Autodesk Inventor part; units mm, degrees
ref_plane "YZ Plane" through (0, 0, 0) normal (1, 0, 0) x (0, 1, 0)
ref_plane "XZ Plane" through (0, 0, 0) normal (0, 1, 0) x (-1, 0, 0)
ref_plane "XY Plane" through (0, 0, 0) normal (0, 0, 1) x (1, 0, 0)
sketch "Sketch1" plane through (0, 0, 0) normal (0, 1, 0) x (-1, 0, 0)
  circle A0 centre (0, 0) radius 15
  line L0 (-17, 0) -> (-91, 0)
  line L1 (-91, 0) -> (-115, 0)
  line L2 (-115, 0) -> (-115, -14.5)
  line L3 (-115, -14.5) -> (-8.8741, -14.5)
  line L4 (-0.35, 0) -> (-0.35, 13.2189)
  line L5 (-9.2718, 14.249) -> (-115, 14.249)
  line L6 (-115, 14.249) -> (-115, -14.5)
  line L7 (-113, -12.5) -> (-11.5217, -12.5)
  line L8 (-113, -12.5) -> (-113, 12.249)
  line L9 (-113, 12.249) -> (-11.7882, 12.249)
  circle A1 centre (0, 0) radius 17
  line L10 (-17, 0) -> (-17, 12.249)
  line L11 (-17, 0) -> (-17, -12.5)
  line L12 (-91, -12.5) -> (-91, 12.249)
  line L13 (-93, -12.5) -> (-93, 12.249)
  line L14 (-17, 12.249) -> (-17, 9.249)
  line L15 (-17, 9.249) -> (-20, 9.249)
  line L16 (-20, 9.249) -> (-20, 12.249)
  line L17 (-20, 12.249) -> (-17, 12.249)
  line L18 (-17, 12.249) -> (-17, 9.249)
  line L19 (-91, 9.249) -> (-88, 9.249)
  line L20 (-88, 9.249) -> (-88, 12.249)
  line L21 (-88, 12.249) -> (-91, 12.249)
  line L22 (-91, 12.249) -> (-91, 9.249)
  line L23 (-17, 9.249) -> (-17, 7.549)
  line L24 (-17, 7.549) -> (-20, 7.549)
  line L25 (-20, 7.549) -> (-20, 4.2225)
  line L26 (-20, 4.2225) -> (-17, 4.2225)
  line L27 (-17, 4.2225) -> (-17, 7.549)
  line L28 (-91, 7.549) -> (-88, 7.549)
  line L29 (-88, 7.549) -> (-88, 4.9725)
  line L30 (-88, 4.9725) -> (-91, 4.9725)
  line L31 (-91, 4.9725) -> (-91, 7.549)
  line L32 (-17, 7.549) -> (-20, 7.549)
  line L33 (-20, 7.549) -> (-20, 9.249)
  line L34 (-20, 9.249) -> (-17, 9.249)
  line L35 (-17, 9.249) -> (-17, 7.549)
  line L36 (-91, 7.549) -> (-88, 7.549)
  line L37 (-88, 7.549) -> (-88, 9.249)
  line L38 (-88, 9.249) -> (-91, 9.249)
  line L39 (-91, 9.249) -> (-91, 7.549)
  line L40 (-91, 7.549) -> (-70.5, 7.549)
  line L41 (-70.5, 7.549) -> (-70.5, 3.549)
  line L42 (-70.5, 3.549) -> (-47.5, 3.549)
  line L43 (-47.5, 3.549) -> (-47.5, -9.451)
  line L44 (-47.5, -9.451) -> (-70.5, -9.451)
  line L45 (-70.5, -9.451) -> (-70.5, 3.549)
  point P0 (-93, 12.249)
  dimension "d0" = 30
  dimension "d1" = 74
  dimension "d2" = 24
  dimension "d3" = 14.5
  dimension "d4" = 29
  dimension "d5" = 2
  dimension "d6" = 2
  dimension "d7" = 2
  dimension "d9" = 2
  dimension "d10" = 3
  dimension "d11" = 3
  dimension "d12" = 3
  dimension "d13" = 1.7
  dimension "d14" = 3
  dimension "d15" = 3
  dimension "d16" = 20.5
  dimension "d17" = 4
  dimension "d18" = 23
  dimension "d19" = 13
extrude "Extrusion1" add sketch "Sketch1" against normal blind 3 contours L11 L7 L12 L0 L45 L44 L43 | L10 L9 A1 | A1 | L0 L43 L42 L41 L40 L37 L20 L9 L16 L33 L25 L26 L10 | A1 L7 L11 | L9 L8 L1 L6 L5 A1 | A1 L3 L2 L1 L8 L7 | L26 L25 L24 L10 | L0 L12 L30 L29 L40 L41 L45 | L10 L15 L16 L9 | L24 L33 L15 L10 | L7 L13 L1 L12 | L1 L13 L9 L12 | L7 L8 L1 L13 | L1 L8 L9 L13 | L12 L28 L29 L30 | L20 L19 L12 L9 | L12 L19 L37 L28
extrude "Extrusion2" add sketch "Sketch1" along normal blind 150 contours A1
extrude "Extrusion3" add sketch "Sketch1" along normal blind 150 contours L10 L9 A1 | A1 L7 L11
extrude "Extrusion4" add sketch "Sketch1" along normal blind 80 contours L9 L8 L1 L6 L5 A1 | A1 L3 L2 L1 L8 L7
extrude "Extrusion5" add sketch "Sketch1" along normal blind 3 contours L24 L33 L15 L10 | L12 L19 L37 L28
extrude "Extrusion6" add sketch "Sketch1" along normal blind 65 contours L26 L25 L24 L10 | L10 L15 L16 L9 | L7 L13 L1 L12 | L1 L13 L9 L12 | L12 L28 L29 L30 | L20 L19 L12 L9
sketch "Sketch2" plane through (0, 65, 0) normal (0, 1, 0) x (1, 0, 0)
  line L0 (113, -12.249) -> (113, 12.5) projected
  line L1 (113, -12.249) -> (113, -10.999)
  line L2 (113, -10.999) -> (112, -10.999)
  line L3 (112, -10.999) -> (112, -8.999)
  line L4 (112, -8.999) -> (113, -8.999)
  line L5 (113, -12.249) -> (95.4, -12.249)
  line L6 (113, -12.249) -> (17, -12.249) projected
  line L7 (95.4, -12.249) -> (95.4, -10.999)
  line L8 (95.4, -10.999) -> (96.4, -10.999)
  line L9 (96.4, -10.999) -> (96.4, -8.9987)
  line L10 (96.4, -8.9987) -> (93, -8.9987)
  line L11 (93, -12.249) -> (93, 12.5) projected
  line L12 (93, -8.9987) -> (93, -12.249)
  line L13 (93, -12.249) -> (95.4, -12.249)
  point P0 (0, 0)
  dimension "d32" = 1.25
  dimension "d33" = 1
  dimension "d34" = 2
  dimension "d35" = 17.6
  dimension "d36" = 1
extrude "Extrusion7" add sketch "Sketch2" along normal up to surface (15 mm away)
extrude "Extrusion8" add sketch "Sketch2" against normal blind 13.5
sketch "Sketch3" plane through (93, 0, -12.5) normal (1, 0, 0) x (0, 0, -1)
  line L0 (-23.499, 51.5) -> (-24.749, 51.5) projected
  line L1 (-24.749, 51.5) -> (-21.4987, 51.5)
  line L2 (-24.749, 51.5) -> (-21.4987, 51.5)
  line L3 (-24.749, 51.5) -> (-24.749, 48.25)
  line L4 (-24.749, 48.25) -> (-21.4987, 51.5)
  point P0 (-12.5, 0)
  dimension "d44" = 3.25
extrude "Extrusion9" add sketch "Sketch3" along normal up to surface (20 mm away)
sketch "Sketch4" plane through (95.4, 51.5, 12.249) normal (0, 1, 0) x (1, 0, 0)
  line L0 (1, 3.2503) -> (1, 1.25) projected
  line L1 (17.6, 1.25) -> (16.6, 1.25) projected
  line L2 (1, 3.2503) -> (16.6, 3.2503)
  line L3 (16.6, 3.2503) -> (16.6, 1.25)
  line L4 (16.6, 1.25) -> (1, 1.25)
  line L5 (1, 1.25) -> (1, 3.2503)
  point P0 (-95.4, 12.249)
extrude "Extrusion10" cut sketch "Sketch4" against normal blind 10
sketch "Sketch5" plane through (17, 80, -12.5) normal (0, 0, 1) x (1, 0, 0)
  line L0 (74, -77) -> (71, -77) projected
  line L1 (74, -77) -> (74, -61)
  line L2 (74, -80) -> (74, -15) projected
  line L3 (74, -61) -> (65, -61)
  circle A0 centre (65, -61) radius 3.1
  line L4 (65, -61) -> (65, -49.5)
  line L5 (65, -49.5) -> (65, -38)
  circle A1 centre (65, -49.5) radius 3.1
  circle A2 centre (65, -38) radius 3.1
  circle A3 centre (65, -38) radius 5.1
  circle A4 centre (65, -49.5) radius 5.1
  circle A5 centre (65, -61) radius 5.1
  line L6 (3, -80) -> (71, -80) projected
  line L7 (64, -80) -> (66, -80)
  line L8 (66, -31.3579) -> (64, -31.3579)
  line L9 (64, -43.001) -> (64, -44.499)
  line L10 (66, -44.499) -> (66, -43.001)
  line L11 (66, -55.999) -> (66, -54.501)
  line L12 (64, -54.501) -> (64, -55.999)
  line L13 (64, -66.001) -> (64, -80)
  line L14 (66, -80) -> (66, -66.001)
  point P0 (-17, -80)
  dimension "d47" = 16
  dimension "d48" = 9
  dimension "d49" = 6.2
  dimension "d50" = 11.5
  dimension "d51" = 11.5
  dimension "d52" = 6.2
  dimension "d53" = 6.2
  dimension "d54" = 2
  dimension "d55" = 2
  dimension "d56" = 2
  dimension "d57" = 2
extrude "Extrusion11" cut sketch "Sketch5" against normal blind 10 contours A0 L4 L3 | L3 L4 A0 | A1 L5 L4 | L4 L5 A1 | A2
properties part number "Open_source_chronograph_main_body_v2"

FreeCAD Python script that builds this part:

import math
import FreeCAD as App
import Part
import Sketcher
from FreeCAD import Vector
Q = App.Units.Quantity


def add_polygon(sketch, points):
    """Adds a closed chain of lines whose ends are joined by coincident constraints."""
    first, n = sketch.GeometryCount, len(points)
    for a, b in zip(points, points[1:] + points[:1]):
        sketch.addGeometry(Part.LineSegment(App.Vector(*a, 0), App.Vector(*b, 0)), False)
    for i in range(n):
        sketch.addConstraint(Sketcher.Constraint("Coincident", first + i, 2, first + (i + 1) % n, 1))

doc = App.newDocument("Part")
params = doc.addObject("Spreadsheet::Sheet", "Params")
for row, (alias, value) in enumerate([
    ("sketch1_diameter", "30 mm"),
    ("sketch1_width", "23 mm"),
    ("sketch1_height", "13 mm"),
    ("sketch1_radius", "17 mm"),
    ("pad1_length", "3 mm"),
    ("sketch2_diameter", "30 mm"),
    ("sketch2_diameter2", "34 mm"),
    ("pad2_length", "150 mm"),
    ("sketch3_radius", "17 mm"),
    ("sketch3_height", "12.5 mm"),
    ("pad3_length", "150 mm"),
    ("sketch4_radius", "17 mm"),
    ("pad4_length", "80 mm"),
    ("sketch5_width", "3 mm"),
    ("sketch5_height", "1.7 mm"),
    ("pad5_length", "3 mm"),
    ("sketch6_width", "3 mm"),
    ("sketch6_width2", "2 mm"),
    ("sketch6_height", "1.7 mm"),
    ("pad6_length", "65 mm"),
    ("sketch7_width", "1 mm"),
    ("sketch7_height", "2 mm"),
    ("sketch7_height2", "1.25 mm"),
    ("sketch7_width2", "2.4 mm"),
    ("pad7_length", "15 mm"),
    ("sketch8_width", "1 mm"),
    ("sketch8_height", "2 mm"),
    ("sketch8_height2", "1.25 mm"),
    ("sketch8_width2", "2.4 mm"),
    ("pad8_length", "13.5 mm"),
    ("sketch9_width", "3.25 mm"),
    ("pad9_length", "20 mm"),
    ("sketch10_width", "15.6 mm"),
    ("pocket1_length", "10 mm"),
    ("sketch11_diameter", "6.2 mm"),
    ("pocket2_length", "10 mm"),
], start=1):
    params.set(f"A{row}", alias)
    params.set(f"B{row}", "=" + value)
    params.setAlias(f"B{row}", alias)

body = doc.addObject("PartDesign::Body", "Body")

# Sketch on XZ plane
sketch1 = body.newObject("Sketcher::SketchObject", "Sketch")
sketch1.AttachmentSupport = (doc.getObject("XZ_Plane"), [""])
sketch1.MapMode = "FlatFace"
sketch1.addGeometry(Part.LineSegment(Vector(115, -14.5, 0), Vector(8.8741, -14.5, 0)), False)  # 0
sketch1.addGeometry(Part.ArcOfCircle(Part.Circle(Vector(0, 0, 0), Vector(0, 0, 1), 17), math.radians(56.948015), math.radians(301.46692)), False)  # 1
sketch1.addGeometry(Part.LineSegment(Vector(9.2718, 14.249, 0), Vector(115, 14.249, 0)), False)  # 2
sketch1.addGeometry(Part.LineSegment(Vector(115, 14.249, 0), Vector(115, -14.5, 0)), False)  # 3
add_polygon(sketch1, [(70.5, -9.451), (70.5, 3.549), (47.5, 3.549), (47.5, -9.451)])  # lines 4-7
sketch1.addGeometry(Part.Circle(Vector(0, 0, 0), Vector(0, 0, 1), 15), False)  # 8
sketch1.addConstraint(Sketcher.Constraint("Coincident", 0, 2, 1, 2))
sketch1.addConstraint(Sketcher.Constraint("Coincident", 1, 1, 2, 1))
sketch1.addConstraint(Sketcher.Constraint("Coincident", 2, 2, 3, 1))
sketch1.addConstraint(Sketcher.Constraint("Coincident", 3, 2, 0, 1))
sketch1.addConstraint(Sketcher.Constraint("Horizontal", 0))
sketch1.addConstraint(Sketcher.Constraint("Horizontal", 2))
sketch1.addConstraint(Sketcher.Constraint("Vertical", 3))
sketch1.addConstraint(Sketcher.Constraint("Vertical", 4))
sketch1.addConstraint(Sketcher.Constraint("Horizontal", 5))
sketch1.addConstraint(Sketcher.Constraint("Vertical", 6))
sketch1.addConstraint(Sketcher.Constraint("Horizontal", 7))
sketch1.addConstraint(Sketcher.Constraint("Coincident", 1, 3, -1, 1))
sketch1.addConstraint(Sketcher.Constraint("Coincident", 8, 3, -1, 1))
sketch1.addConstraint(Sketcher.Constraint("Diameter", 8, Q("30 mm")))
sketch1.addConstraint(Sketcher.Constraint("DistanceX", 5, 2, 5, 1, Q("23 mm")))
sketch1.addConstraint(Sketcher.Constraint("DistanceY", 4, 1, 4, 2, Q("13 mm")))
sketch1.addConstraint(Sketcher.Constraint("Radius", 1, Q("17 mm")))
sketch1.addConstraint(Sketcher.Constraint("DistanceY", 0, 2, -1, 1, Q("14.5 mm")))
sketch1.addConstraint(Sketcher.Constraint("DistanceX", -1, 1, 2, 2, Q("115 mm")))
sketch1.addConstraint(Sketcher.Constraint("DistanceX", -1, 1, 4, 2, Q("70.5 mm")))
sketch1.addConstraint(Sketcher.Constraint("DistanceY", 4, 2, 2, 2, Q("10.7 mm")))
sketch1.addConstraint(Sketcher.Constraint("DistanceY", 3, 2, 3, 1, Q("28.749 mm")))
sketch1.setExpression("Constraints[17]", "Params.sketch1_diameter")
sketch1.setExpression("Constraints[18]", "Params.sketch1_width")
sketch1.setExpression("Constraints[19]", "Params.sketch1_height")
sketch1.setExpression("Constraints[20]", "Params.sketch1_radius")
pad1 = body.newObject("PartDesign::Pad", "Pad")
pad1.Profile = sketch1
pad1.setExpression("Length", "Params.pad1_length")

# Sketch on XZ plane
sketch2 = body.newObject("Sketcher::SketchObject", "Sketch001")
sketch2.AttachmentSupport = (doc.getObject("XZ_Plane"), [""])
sketch2.MapMode = "FlatFace"
sketch2.addGeometry(Part.Circle(Vector(0, 0, 0), Vector(0, 0, 1), 17), False)
sketch2.addGeometry(Part.Circle(Vector(0, 0, 0), Vector(0, 0, 1), 15), False)
sketch2.addConstraint(Sketcher.Constraint("Coincident", 0, 3, -1, 1))
sketch2.addConstraint(Sketcher.Constraint("Coincident", 1, 3, -1, 1))
sketch2.addConstraint(Sketcher.Constraint("Diameter", 1, Q("30 mm")))
sketch2.addConstraint(Sketcher.Constraint("Diameter", 0, Q("34 mm")))
sketch2.setExpression("Constraints[2]", "Params.sketch2_diameter")
sketch2.setExpression("Constraints[3]", "Params.sketch2_diameter2")
pad2 = body.newObject("PartDesign::Pad", "Pad001")
pad2.Profile = sketch2
pad2.setExpression("Length", "Params.pad2_length")
pad2.Reversed = True

# Sketch on XZ plane
sketch3 = body.newObject("Sketcher::SketchObject", "Sketch002")
sketch3.AttachmentSupport = (doc.getObject("XZ_Plane"), [""])
sketch3.MapMode = "FlatFace"
sketch3.addGeometry(Part.LineSegment(Vector(17, 12.249, 0), Vector(17, 0, 0)), False)
sketch3.addGeometry(Part.ArcOfCircle(Part.Circle(Vector(0, 0, 0), Vector(0, 0, 1), 17), math.radians(0), math.radians(46.098242)), False)
sketch3.addGeometry(Part.LineSegment(Vector(11.7882, 12.249, 0), Vector(17, 12.249, 0)), False)
sketch3.addGeometry(Part.ArcOfCircle(Part.Circle(Vector(0, 0, 0), Vector(0, 0, 1), 17), math.radians(-47.332121), math.radians(0)), False)
sketch3.addGeometry(Part.LineSegment(Vector(17, 0, 0), Vector(17, -12.5, 0)), False)
sketch3.addGeometry(Part.LineSegment(Vector(17, -12.5, 0), Vector(11.5217, -12.5, 0)), False)
sketch3.addConstraint(Sketcher.Constraint("Tangent", 0, 2, 1, 1))
sketch3.addConstraint(Sketcher.Constraint("Coincident", 1, 2, 2, 1))
sketch3.addConstraint(Sketcher.Constraint("Coincident", 2, 2, 0, 1))
sketch3.addConstraint(Sketcher.Constraint("Tangent", 3, 2, 4, 1))
sketch3.addConstraint(Sketcher.Constraint("Coincident", 4, 2, 5, 1))
sketch3.addConstraint(Sketcher.Constraint("Coincident", 5, 2, 3, 1))
sketch3.addConstraint(Sketcher.Constraint("Vertical", 0))
sketch3.addConstraint(Sketcher.Constraint("Horizontal", 2))
sketch3.addConstraint(Sketcher.Constraint("Vertical", 4))
sketch3.addConstraint(Sketcher.Constraint("Horizontal", 5))
sketch3.addConstraint(Sketcher.Constraint("Coincident", 1, 3, -1, 1))
sketch3.addConstraint(Sketcher.Constraint("Coincident", 3, 3, -1, 1))
sketch3.addConstraint(Sketcher.Constraint("Equal", 1, 3))
sketch3.addConstraint(Sketcher.Constraint("Radius", 1, Q("17 mm")))
sketch3.addConstraint(Sketcher.Constraint("DistanceY", 4, 2, 4, 1, Q("12.5 mm")))
sketch3.addConstraint(Sketcher.Constraint("DistanceY", 0, 2, 0, 1, Q("12.249 mm")))
sketch3.setExpression("Constraints[13]", "Params.sketch3_radius")
sketch3.setExpression("Constraints[14]", "Params.sketch3_height")
pad3 = body.newObject("PartDesign::Pad", "Pad002")
pad3.Profile = sketch3
pad3.setExpression("Length", "Params.pad3_length")
pad3.Reversed = True

# Sketch on XZ plane
sketch4 = body.newObject("Sketcher::SketchObject", "Sketch003")
sketch4.AttachmentSupport = (doc.getObject("XZ_Plane"), [""])
sketch4.MapMode = "FlatFace"
sketch4.addGeometry(Part.ArcOfCircle(Part.Circle(Vector(0, 0, 0), Vector(0, 0, 1), 17), math.radians(46.098242), math.radians(56.948015)), False)
sketch4.addGeometry(Part.LineSegment(Vector(9.2718, 14.249, 0), Vector(115, 14.249, 0)), False)
sketch4.addGeometry(Part.LineSegment(Vector(115, 14.249, 0), Vector(115, -14.5, 0)), False)
sketch4.addGeometry(Part.LineSegment(Vector(115, -14.5, 0), Vector(8.8741, -14.5, 0)), False)
sketch4.addGeometry(Part.ArcOfCircle(Part.Circle(Vector(0, 0, 0), Vector(0, 0, 1), 17), math.radians(-58.53308), math.radians(-47.332121)), False)
sketch4.addGeometry(Part.LineSegment(Vector(11.5217, -12.5, 0), Vector(113, -12.5, 0)), False)
sketch4.addGeometry(Part.LineSegment(Vector(113, -12.5, 0), Vector(113, 12.249, 0)), False)
sketch4.addGeometry(Part.LineSegment(Vector(113, 12.249, 0), Vector(11.7882, 12.249, 0)), False)
sketch4.addConstraint(Sketcher.Constraint("Coincident", 0, 2, 1, 1))
sketch4.addConstraint(Sketcher.Constraint("Coincident", 1, 2, 2, 1))
sketch4.addConstraint(Sketcher.Constraint("Coincident", 2, 2, 3, 1))
sketch4.addConstraint(Sketcher.Constraint("Coincident", 3, 2, 4, 1))
sketch4.addConstraint(Sketcher.Constraint("Coincident", 4, 2, 5, 1))
sketch4.addConstraint(Sketcher.Constraint("Coincident", 5, 2, 6, 1))
sketch4.addConstraint(Sketcher.Constraint("Coincident", 6, 2, 7, 1))
sketch4.addConstraint(Sketcher.Constraint("Coincident", 7, 2, 0, 1))
sketch4.addConstraint(Sketcher.Constraint("Horizontal", 1))
sketch4.addConstraint(Sketcher.Constraint("Vertical", 2))
sketch4.addConstraint(Sketcher.Constraint("Horizontal", 3))
sketch4.addConstraint(Sketcher.Constraint("Horizontal", 5))
sketch4.addConstraint(Sketcher.Constraint("Vertical", 6))
sketch4.addConstraint(Sketcher.Constraint("Horizontal", 7))
sketch4.addConstraint(Sketcher.Constraint("Coincident", 0, 3, -1, 1))
sketch4.addConstraint(Sketcher.Constraint("Coincident", 4, 3, -1, 1))
sketch4.addConstraint(Sketcher.Constraint("Equal", 0, 4))
sketch4.addConstraint(Sketcher.Constraint("Radius", 0, Q("17 mm")))
sketch4.addConstraint(Sketcher.Constraint("DistanceY", 3, 2, 4, 2, Q("2 mm")))
sketch4.addConstraint(Sketcher.Constraint("DistanceX", 5, 2, 2, 2, Q("2 mm")))
sketch4.addConstraint(Sketcher.Constraint("DistanceY", 6, 2, 1, 2, Q("2 mm")))
sketch4.addConstraint(Sketcher.Constraint("DistanceY", 2, 2, -1, 1, Q("14.5 mm")))
sketch4.addConstraint(Sketcher.Constraint("DistanceX", -1, 1, 1, 2, Q("115 mm")))
sketch4.addConstraint(Sketcher.Constraint("DistanceY", 2, 2, 2, 1, Q("28.749 mm")))
sketch4.setExpression("Constraints[17]", "Params.sketch4_radius")
pad4 = body.newObject("PartDesign::Pad", "Pad003")
pad4.Profile = sketch4
pad4.setExpression("Length", "Params.pad4_length")
pad4.Reversed = True

# Sketch on XZ plane
sketch5 = body.newObject("Sketcher::SketchObject", "Sketch004")
sketch5.AttachmentSupport = (doc.getObject("XZ_Plane"), [""])
sketch5.MapMode = "FlatFace"
add_polygon(sketch5, [(20, 7.549), (17, 7.549), (17, 9.249), (20, 9.249)])  # lines 0-3
add_polygon(sketch5, [(91, 9.249), (91, 7.549), (88, 7.549), (88, 9.249)])  # lines 4-7
sketch5.addConstraint(Sketcher.Constraint("Horizontal", 0))
sketch5.addConstraint(Sketcher.Constraint("Vertical", 1))
sketch5.addConstraint(Sketcher.Constraint("Horizontal", 2))
sketch5.addConstraint(Sketcher.Constraint("Vertical", 3))
sketch5.addConstraint(Sketcher.Constraint("Vertical", 4))
sketch5.addConstraint(Sketcher.Constraint("Horizontal", 5))
sketch5.addConstraint(Sketcher.Constraint("Vertical", 6))
sketch5.addConstraint(Sketcher.Constraint("Horizontal", 7))
sketch5.addConstraint(Sketcher.Constraint("Horizontal", 3, 2, 4, 2))
sketch5.addConstraint(Sketcher.Constraint("Horizontal", 2, 2, 6, 2))
sketch5.addConstraint(Sketcher.Constraint("Equal", 2, 5))
sketch5.addConstraint(Sketcher.Constraint("DistanceX", 0, 2, 0, 1, Q("3 mm")))
sketch5.addConstraint(Sketcher.Constraint("DistanceY", 1, 1, 1, 2, Q("1.7 mm")))
sketch5.addConstraint(Sketcher.Constraint("DistanceX", 0, 2, 4, 2, Q("74 mm")))
sketch5.addConstraint(Sketcher.Constraint("DistanceX", -1, 1, 0, 2, Q("17 mm")))
sketch5.addConstraint(Sketcher.Constraint("DistanceY", -1, 1, 0, 2, Q("7.549 mm")))
sketch5.setExpression("Constraints[19]", "Params.sketch5_width")
sketch5.setExpression("Constraints[20]", "Params.sketch5_height")
pad5 = body.newObject("PartDesign::Pad", "Pad004")
pad5.Profile = sketch5
pad5.setExpression("Length", "Params.pad5_length")
pad5.Reversed = True

# Sketch on XZ plane
sketch6 = body.newObject("Sketcher::SketchObject", "Sketch005")
sketch6.AttachmentSupport = (doc.getObject("XZ_Plane"), [""])
sketch6.MapMode = "FlatFace"
add_polygon(sketch6, [(20, 4.2225), (17, 4.2225), (17, 7.549), (20, 7.549)])  # lines 0-3
add_polygon(sketch6, [(17, 9.249), (17, 12.249), (20, 12.249), (20, 9.249)])  # lines 4-7
add_polygon(sketch6, [(93, -12.5), (91, -12.5), (91, 4.9725), (88, 4.9725), (88, 7.549), (91, 7.549), (91, 9.249), (88, 9.249), (88, 12.249), (93, 12.249)])  # lines 8-17
sketch6.addConstraint(Sketcher.Constraint("Horizontal", 0))
sketch6.addConstraint(Sketcher.Constraint("Vertical", 1))
sketch6.addConstraint(Sketcher.Constraint("Horizontal", 2))
sketch6.addConstraint(Sketcher.Constraint("Vertical", 3))
sketch6.addConstraint(Sketcher.Constraint("Vertical", 4))
sketch6.addConstraint(Sketcher.Constraint("Horizontal", 5))
sketch6.addConstraint(Sketcher.Constraint("Vertical", 6))
sketch6.addConstraint(Sketcher.Constraint("Horizontal", 7))
sketch6.addConstraint(Sketcher.Constraint("Horizontal", 8))
sketch6.addConstraint(Sketcher.Constraint("Vertical", 9))
sketch6.addConstraint(Sketcher.Constraint("Horizontal", 10))
sketch6.addConstraint(Sketcher.Constraint("Vertical", 11))
sketch6.addConstraint(Sketcher.Constraint("Horizontal", 12))
sketch6.addConstraint(Sketcher.Constraint("Vertical", 13))
sketch6.addConstraint(Sketcher.Constraint("Horizontal", 14))
sketch6.addConstraint(Sketcher.Constraint("Vertical", 15))
sketch6.addConstraint(Sketcher.Constraint("Horizontal", 16))
sketch6.addConstraint(Sketcher.Constraint("Vertical", 17))
sketch6.addConstraint(Sketcher.Constraint("Horizontal", 2, 2, 11, 2))
sketch6.addConstraint(Sketcher.Constraint("Horizontal", 7, 2, 13, 2))
sketch6.addConstraint(Sketcher.Constraint("Horizontal", 5, 2, 15, 2))
sketch6.addConstraint(Sketcher.Constraint("Vertical", 1, 2, 4, 2))
sketch6.addConstraint(Sketcher.Constraint("Vertical", 3, 2, 5, 2))
sketch6.addConstraint(Sketcher.Constraint("Vertical", 9, 2, 12, 2))
sketch6.addConstraint(Sketcher.Constraint("Vertical", 11, 2, 14, 2))
sketch6.addConstraint(Sketcher.Constraint("Equal", 7, 10))
sketch6.addConstraint(Sketcher.Constraint("Equal", 14, 4))
sketch6.addConstraint(Sketcher.Constraint("DistanceX", 0, 2, 0, 1, Q("3 mm")))
sketch6.addConstraint(Sketcher.Constraint("DistanceX", 8, 2, 8, 1, Q("2 mm")))
sketch6.addConstraint(Sketcher.Constraint("DistanceY", 13, 1, 13, 2, Q("1.7 mm")))
sketch6.addConstraint(Sketcher.Constraint("DistanceX", 0, 2, 8, 2, Q("74 mm")))
sketch6.addConstraint(Sketcher.Constraint("DistanceX", -1, 1, 0, 2, Q("17 mm")))
sketch6.addConstraint(Sketcher.Constraint("DistanceY", 8, 2, -1, 1, Q("12.5 mm")))
sketch6.addConstraint(Sketcher.Constraint("DistanceY", 17, 2, 17, 1, Q("24.749 mm")))
sketch6.addConstraint(Sketcher.Constraint("DistanceY", 3, 2, 9, 2, Q("0.75 mm")))
sketch6.addConstraint(Sketcher.Constraint("DistanceY", 1, 1, 1, 2, Q("3.3265 mm")))
sketch6.setExpression("Constraints[45]", "Params.sketch6_width")
sketch6.setExpression("Constraints[46]", "Params.sketch6_width2")
sketch6.setExpression("Constraints[47]", "Params.sketch6_height")
pad6 = body.newObject("PartDesign::Pad", "Pad005")
pad6.Profile = sketch6
pad6.setExpression("Length", "Params.pad6_length")
pad6.Reversed = True

# Sketch on XZ plane
sketch7 = body.newObject("Sketcher::SketchObject", "Sketch006")
sketch7.AttachmentSupport = (doc.getObject("XZ_Plane"), [""])
sketch7.MapMode = "FlatFace"
sketch7.AttachmentOffset = App.Placement(Vector(0, 0, -65), App.Rotation())
add_polygon(sketch7, [(112, 10.999), (113, 10.999), (113, 8.999), (112, 8.999)])  # lines 0-3
add_polygon(sketch7, [(93, 12.249), (95.4, 12.249), (95.4, 10.999), (96.4, 10.999), (96.4, 8.9987), (93, 8.9987)])  # lines 4-9
sketch7.addConstraint(Sketcher.Constraint("Horizontal", 0))
sketch7.addConstraint(Sketcher.Constraint("Vertical", 1))
sketch7.addConstraint(Sketcher.Constraint("Horizontal", 2))
sketch7.addConstraint(Sketcher.Constraint("Vertical", 3))
sketch7.addConstraint(Sketcher.Constraint("Horizontal", 4))
sketch7.addConstraint(Sketcher.Constraint("Vertical", 5))
sketch7.addConstraint(Sketcher.Constraint("Horizontal", 6))
sketch7.addConstraint(Sketcher.Constraint("Vertical", 7))
sketch7.addConstraint(Sketcher.Constraint("Horizontal", 8))
sketch7.addConstraint(Sketcher.Constraint("Vertical", 9))
sketch7.addConstraint(Sketcher.Constraint("Horizontal", 3, 2, 5, 2))
sketch7.addConstraint(Sketcher.Constraint("Equal", 2, 6))
sketch7.addConstraint(Sketcher.Constraint("DistanceX", 0, 1, 0, 2, Q("1 mm")))
sketch7.addConstraint(Sketcher.Constraint("DistanceY", 1, 2, 1, 1, Q("2 mm")))
sketch7.addConstraint(Sketcher.Constraint("DistanceY", 5, 2, 5, 1, Q("1.25 mm")))
sketch7.addConstraint(Sketcher.Constraint("DistanceX", 4, 2, 0, 2, Q("17.6 mm")))
sketch7.addConstraint(Sketcher.Constraint("DistanceX", 4, 1, 4, 2, Q("2.4 mm")))
sketch7.addConstraint(Sketcher.Constraint("DistanceY", 7, 2, 7, 1, Q("2.0003 mm")))
sketch7.addConstraint(Sketcher.Constraint("DistanceX", -1, 1, 0, 2, Q("113 mm")))
sketch7.addConstraint(Sketcher.Constraint("DistanceY", -1, 1, 0, 2, Q("10.999 mm")))
sketch7.setExpression("Constraints[22]", "Params.sketch7_width")
sketch7.setExpression("Constraints[23]", "Params.sketch7_height")
sketch7.setExpression("Constraints[24]", "Params.sketch7_height2")
sketch7.setExpression("Constraints[26]", "Params.sketch7_width2")
pad7 = body.newObject("PartDesign::Pad", "Pad006")
pad7.Profile = sketch7
pad7.setExpression("Length", "Params.pad7_length")
pad7.Reversed = True

# Sketch on XZ plane
sketch8 = body.newObject("Sketcher::SketchObject", "Sketch007")
sketch8.AttachmentSupport = (doc.getObject("XZ_Plane"), [""])
sketch8.MapMode = "FlatFace"
sketch8.AttachmentOffset = App.Placement(Vector(0, 0, -65), App.Rotation())
add_polygon(sketch8, [(112, 10.999), (113, 10.999), (113, 8.999), (112, 8.999)])  # lines 0-3
add_polygon(sketch8, [(93, 12.249), (95.4, 12.249), (95.4, 10.999), (96.4, 10.999), (96.4, 8.9987), (93, 8.9987)])  # lines 4-9
sketch8.addConstraint(Sketcher.Constraint("Horizontal", 0))
sketch8.addConstraint(Sketcher.Constraint("Vertical", 1))
sketch8.addConstraint(Sketcher.Constraint("Horizontal", 2))
sketch8.addConstraint(Sketcher.Constraint("Vertical", 3))
sketch8.addConstraint(Sketcher.Constraint("Horizontal", 4))
sketch8.addConstraint(Sketcher.Constraint("Vertical", 5))
sketch8.addConstraint(Sketcher.Constraint("Horizontal", 6))
sketch8.addConstraint(Sketcher.Constraint("Vertical", 7))
sketch8.addConstraint(Sketcher.Constraint("Horizontal", 8))
sketch8.addConstraint(Sketcher.Constraint("Vertical", 9))
sketch8.addConstraint(Sketcher.Constraint("Horizontal", 3, 2, 5, 2))
sketch8.addConstraint(Sketcher.Constraint("Equal", 2, 6))
sketch8.addConstraint(Sketcher.Constraint("DistanceX", 0, 1, 0, 2, Q("1 mm")))
sketch8.addConstraint(Sketcher.Constraint("DistanceY", 1, 2, 1, 1, Q("2 mm")))
sketch8.addConstraint(Sketcher.Constraint("DistanceY", 5, 2, 5, 1, Q("1.25 mm")))
sketch8.addConstraint(Sketcher.Constraint("DistanceX", 4, 2, 0, 2, Q("17.6 mm")))
sketch8.addConstraint(Sketcher.Constraint("DistanceX", 4, 1, 4, 2, Q("2.4 mm")))
sketch8.addConstraint(Sketcher.Constraint("DistanceY", 7, 2, 7, 1, Q("2.0003 mm")))
sketch8.addConstraint(Sketcher.Constraint("DistanceX", -1, 1, 0, 2, Q("113 mm")))
sketch8.addConstraint(Sketcher.Constraint("DistanceY", -1, 1, 0, 2, Q("10.999 mm")))
sketch8.setExpression("Constraints[22]", "Params.sketch8_width")
sketch8.setExpression("Constraints[23]", "Params.sketch8_height")
sketch8.setExpression("Constraints[24]", "Params.sketch8_height2")
sketch8.setExpression("Constraints[26]", "Params.sketch8_width2")
pad8 = body.newObject("PartDesign::Pad", "Pad007")
pad8.Profile = sketch8
pad8.setExpression("Length", "Params.pad8_length")

# Sketch on YZ plane
sketch9 = body.newObject("Sketcher::SketchObject", "Sketch008")
sketch9.AttachmentSupport = (doc.getObject("YZ_Plane"), [""])
sketch9.MapMode = "FlatFace"
sketch9.AttachmentOffset = App.Placement(Vector(0, 0, 93), App.Rotation())
add_polygon(sketch9, [(51.5, 8.9987), (51.5, 12.249), (48.25, 12.249)])  # lines 0-2
sketch9.addConstraint(Sketcher.Constraint("Vertical", 0))
sketch9.addConstraint(Sketcher.Constraint("Horizontal", 1))
sketch9.addConstraint(Sketcher.Constraint("DistanceX", 1, 2, 1, 1, Q("3.25 mm")))
sketch9.addConstraint(Sketcher.Constraint("DistanceY", 0, 1, 0, 2, Q("3.2503 mm")))
sketch9.addConstraint(Sketcher.Constraint("DistanceX", -1, 1, 0, 2, Q("51.5 mm")))
sketch9.addConstraint(Sketcher.Constraint("DistanceY", -1, 1, 0, 2, Q("12.249 mm")))
sketch9.setExpression("Constraints[5]", "Params.sketch9_width")
pad9 = body.newObject("PartDesign::Pad", "Pad008")
pad9.Profile = sketch9
pad9.setExpression("Length", "Params.pad9_length")

# Sketch on XZ plane
sketch10 = body.newObject("Sketcher::SketchObject", "Sketch009")
sketch10.AttachmentSupport = (doc.getObject("XZ_Plane"), [""])
sketch10.MapMode = "FlatFace"
sketch10.AttachmentOffset = App.Placement(Vector(0, 0, -51.5), App.Rotation())
add_polygon(sketch10, [(112, 8.9987), (96.4, 8.9987), (96.4, 10.999), (112, 10.999)])  # lines 0-3
sketch10.addConstraint(Sketcher.Constraint("Horizontal", 0))
sketch10.addConstraint(Sketcher.Constraint("Vertical", 1))
sketch10.addConstraint(Sketcher.Constraint("Horizontal", 2))
sketch10.addConstraint(Sketcher.Constraint("Vertical", 3))
sketch10.addConstraint(Sketcher.Constraint("DistanceX", 0, 2, 0, 1, Q("15.6 mm")))
sketch10.addConstraint(Sketcher.Constraint("DistanceX", -1, 1, 2, 2, Q("112 mm")))
sketch10.addConstraint(Sketcher.Constraint("DistanceY", 1, 1, 1, 2, Q("2.0003 mm")))
sketch10.addConstraint(Sketcher.Constraint("DistanceY", -1, 1, 1, 2, Q("10.999 mm")))
sketch10.setExpression("Constraints[8]", "Params.sketch10_width")
pocket1 = body.newObject("PartDesign::Pocket", "Pocket")
pocket1.Profile = sketch10
pocket1.setExpression("Length", "Params.pocket1_length")
pocket1.Reversed = True

# Sketch on XY plane
sketch11 = body.newObject("Sketcher::SketchObject", "Sketch010")
sketch11.AttachmentSupport = (doc.getObject("XY_Plane"), [""])
sketch11.MapMode = "FlatFace"
sketch11.AttachmentOffset = App.Placement(Vector(0, 0, -12.5), App.Rotation())
sketch11.addGeometry(Part.Circle(Vector(82, 19, 0), Vector(0, 0, 1), 3.1), False)
sketch11.addGeometry(Part.Circle(Vector(82, 30.5, 0), Vector(0, 0, 1), 3.1), False)
sketch11.addGeometry(Part.Circle(Vector(82, 42, 0), Vector(0, 0, 1), 3.1), False)
sketch11.addConstraint(Sketcher.Constraint("Equal", 0, 1))
sketch11.addConstraint(Sketcher.Constraint("Equal", 1, 2))
sketch11.addConstraint(Sketcher.Constraint("Vertical", 0, 3, 1, 3))
sketch11.addConstraint(Sketcher.Constraint("Vertical", 1, 3, 2, 3))
sketch11.addConstraint(Sketcher.Constraint("Diameter", 0, Q("6.2 mm")))
sketch11.addConstraint(Sketcher.Constraint("DistanceY", 0, 3, 1, 3, Q("11.5 mm")))
sketch11.addConstraint(Sketcher.Constraint("DistanceY", 1, 3, 2, 3, Q("11.5 mm")))
sketch11.addConstraint(Sketcher.Constraint("DistanceX", -1, 1, 0, 3, Q("82 mm")))
sketch11.addConstraint(Sketcher.Constraint("DistanceY", -1, 1, 0, 3, Q("19 mm")))
sketch11.setExpression("Constraints[4]", "Params.sketch11_diameter")
pocket2 = body.newObject("PartDesign::Pocket", "Pocket001")
pocket2.Profile = sketch11
pocket2.setExpression("Length", "Params.pocket2_length")

doc.recompute()
